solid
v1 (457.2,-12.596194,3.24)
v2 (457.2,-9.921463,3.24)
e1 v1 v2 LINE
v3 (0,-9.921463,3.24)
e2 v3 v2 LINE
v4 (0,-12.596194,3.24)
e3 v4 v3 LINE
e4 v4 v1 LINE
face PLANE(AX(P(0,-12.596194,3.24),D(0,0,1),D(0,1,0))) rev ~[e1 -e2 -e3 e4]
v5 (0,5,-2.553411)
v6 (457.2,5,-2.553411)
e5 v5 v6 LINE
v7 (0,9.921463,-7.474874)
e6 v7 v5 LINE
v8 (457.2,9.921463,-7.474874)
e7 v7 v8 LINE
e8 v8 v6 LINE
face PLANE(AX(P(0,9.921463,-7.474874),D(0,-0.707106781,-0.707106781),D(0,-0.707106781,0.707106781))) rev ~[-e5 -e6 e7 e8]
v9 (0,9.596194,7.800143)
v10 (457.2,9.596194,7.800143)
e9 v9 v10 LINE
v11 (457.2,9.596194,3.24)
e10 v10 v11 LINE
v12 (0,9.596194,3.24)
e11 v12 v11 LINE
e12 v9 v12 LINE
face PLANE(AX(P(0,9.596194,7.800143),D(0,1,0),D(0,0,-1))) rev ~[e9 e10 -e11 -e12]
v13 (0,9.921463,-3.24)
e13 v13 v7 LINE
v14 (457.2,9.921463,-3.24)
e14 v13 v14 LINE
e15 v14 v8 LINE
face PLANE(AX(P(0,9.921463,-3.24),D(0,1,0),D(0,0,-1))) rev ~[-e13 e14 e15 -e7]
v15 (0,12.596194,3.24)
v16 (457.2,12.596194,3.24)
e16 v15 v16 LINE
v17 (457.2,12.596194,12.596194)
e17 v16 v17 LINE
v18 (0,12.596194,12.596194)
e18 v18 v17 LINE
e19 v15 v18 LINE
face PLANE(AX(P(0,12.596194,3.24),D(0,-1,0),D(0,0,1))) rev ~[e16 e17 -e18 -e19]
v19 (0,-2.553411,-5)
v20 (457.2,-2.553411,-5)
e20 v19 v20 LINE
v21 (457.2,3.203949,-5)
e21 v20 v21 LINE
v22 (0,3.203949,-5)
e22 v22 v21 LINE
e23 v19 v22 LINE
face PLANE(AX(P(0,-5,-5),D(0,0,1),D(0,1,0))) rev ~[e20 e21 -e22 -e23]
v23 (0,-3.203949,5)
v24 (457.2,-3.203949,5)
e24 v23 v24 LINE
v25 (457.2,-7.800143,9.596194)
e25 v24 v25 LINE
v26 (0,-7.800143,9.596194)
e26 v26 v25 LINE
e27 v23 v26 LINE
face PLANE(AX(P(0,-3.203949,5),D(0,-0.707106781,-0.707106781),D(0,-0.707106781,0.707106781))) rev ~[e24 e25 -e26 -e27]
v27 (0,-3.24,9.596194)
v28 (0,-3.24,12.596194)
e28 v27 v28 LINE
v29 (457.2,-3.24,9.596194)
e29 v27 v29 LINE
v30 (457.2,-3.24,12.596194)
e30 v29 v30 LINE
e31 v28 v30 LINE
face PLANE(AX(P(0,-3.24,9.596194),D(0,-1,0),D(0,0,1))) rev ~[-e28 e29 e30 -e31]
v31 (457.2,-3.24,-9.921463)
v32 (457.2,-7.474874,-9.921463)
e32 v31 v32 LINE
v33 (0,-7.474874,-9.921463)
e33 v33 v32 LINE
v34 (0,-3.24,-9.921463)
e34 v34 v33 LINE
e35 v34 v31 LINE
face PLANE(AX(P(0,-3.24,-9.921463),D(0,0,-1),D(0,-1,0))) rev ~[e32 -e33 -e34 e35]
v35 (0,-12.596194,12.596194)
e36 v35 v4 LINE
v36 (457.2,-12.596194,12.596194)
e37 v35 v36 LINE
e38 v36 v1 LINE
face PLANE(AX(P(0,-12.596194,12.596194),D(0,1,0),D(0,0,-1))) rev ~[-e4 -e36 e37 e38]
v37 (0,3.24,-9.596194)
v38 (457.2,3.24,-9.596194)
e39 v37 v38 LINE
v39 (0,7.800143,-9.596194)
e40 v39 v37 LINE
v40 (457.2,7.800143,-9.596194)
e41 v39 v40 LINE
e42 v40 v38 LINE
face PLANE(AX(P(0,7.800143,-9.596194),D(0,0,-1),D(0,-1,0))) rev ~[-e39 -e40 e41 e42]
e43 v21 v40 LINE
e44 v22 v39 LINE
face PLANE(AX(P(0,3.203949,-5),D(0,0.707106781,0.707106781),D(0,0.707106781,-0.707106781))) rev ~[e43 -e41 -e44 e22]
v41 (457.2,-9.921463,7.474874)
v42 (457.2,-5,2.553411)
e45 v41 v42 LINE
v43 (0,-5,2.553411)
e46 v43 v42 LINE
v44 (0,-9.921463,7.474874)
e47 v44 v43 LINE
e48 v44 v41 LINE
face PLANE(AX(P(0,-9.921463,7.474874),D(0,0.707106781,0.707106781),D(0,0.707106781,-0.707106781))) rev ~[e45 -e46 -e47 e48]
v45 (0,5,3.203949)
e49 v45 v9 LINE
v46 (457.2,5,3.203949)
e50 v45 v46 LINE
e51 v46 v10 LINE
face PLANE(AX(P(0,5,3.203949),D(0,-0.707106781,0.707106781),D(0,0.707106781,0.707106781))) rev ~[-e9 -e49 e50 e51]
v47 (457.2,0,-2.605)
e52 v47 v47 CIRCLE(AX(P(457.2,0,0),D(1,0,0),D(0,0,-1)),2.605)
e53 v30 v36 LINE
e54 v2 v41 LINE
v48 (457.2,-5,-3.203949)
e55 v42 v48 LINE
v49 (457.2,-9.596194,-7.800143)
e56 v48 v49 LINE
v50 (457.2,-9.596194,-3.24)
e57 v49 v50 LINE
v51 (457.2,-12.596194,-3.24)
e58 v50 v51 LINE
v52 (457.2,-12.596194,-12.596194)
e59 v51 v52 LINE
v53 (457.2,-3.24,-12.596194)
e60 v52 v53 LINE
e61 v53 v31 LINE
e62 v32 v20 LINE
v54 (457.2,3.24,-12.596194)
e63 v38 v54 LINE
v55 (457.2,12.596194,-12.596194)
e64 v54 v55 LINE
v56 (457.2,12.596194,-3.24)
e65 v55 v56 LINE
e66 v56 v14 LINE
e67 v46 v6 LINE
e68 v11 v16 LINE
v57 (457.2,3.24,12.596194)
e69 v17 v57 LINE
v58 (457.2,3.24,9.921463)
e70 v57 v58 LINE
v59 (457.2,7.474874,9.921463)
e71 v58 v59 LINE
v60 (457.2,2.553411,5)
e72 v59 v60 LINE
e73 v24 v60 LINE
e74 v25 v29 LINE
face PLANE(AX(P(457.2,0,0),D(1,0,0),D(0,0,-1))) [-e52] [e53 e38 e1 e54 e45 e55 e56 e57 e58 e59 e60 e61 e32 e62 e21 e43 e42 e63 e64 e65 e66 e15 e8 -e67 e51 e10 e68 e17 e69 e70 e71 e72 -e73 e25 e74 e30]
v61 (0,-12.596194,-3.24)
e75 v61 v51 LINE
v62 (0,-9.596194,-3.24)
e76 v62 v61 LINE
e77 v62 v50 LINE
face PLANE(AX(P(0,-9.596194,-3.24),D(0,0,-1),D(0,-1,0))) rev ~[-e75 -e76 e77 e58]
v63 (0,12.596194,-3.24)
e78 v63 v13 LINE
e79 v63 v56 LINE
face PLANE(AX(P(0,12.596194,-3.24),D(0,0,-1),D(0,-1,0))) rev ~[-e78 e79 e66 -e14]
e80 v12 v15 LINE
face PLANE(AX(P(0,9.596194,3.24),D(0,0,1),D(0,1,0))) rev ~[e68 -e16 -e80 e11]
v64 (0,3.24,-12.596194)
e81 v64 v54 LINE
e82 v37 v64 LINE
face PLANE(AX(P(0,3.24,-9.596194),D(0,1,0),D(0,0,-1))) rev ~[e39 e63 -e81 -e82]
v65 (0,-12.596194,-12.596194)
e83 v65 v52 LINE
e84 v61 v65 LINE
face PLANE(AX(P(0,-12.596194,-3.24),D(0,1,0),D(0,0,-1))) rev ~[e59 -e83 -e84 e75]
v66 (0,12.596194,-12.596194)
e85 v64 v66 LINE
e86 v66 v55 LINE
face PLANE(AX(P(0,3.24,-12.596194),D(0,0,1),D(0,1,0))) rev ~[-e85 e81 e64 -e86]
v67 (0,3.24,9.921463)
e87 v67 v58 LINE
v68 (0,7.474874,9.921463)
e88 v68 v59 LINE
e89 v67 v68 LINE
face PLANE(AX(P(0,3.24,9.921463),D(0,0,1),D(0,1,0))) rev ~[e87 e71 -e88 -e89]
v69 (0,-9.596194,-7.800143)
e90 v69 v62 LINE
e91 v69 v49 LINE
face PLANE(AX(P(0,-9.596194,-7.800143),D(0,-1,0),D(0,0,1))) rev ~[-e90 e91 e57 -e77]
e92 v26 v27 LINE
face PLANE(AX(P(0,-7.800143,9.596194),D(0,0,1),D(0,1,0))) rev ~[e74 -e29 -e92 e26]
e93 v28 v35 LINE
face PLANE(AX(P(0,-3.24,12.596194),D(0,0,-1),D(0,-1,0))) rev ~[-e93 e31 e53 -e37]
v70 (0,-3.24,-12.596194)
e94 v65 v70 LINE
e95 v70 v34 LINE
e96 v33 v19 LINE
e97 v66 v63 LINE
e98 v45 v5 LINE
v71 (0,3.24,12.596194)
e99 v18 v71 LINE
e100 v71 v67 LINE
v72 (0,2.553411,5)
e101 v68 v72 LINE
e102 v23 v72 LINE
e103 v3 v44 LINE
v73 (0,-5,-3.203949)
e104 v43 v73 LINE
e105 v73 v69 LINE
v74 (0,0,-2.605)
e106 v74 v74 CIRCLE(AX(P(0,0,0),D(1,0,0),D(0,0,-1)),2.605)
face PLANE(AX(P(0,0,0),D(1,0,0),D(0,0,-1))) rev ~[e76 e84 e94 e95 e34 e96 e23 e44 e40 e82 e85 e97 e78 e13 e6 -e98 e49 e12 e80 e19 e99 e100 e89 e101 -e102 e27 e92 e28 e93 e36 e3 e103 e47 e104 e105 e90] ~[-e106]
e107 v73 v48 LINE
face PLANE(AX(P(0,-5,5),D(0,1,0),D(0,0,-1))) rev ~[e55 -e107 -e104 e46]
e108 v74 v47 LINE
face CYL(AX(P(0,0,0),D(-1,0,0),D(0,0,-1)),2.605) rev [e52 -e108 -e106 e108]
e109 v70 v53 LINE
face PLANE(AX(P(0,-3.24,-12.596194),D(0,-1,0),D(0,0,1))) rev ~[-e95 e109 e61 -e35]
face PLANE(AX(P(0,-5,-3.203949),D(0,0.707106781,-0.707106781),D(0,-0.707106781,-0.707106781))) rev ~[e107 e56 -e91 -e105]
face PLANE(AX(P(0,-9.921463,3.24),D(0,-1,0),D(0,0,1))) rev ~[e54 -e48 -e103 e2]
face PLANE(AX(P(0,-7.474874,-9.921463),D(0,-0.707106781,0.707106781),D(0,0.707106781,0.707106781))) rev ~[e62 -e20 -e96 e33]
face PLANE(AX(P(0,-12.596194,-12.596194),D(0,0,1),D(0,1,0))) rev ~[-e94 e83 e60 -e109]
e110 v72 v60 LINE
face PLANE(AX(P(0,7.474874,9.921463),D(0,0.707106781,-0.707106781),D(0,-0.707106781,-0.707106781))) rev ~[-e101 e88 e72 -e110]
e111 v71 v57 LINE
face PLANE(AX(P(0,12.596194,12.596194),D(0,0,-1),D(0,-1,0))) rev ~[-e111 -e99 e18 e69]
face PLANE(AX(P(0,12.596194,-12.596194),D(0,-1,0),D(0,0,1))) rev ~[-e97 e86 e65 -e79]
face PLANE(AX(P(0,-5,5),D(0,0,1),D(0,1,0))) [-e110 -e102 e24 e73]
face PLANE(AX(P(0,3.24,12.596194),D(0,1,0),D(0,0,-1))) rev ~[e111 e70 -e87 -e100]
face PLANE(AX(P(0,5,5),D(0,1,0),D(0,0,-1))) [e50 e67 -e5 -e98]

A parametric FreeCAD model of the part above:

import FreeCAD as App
import Part
import Sketcher
Q = App.Units.Quantity


def add_polygon(sketch, points):
    """Adds a closed chain of lines whose ends are joined by coincident constraints."""
    first, n = sketch.GeometryCount, len(points)
    for a, b in zip(points, points[1:] + points[:1]):
        sketch.addGeometry(Part.LineSegment(App.Vector(*a, 0), App.Vector(*b, 0)), False)
    for i in range(n):
        sketch.addConstraint(Sketcher.Constraint("Coincident", first + i, 2, first + (i + 1) % n, 1))

doc = App.newDocument("Part")
body = doc.addObject("PartDesign::Body", "Body")

# Sketch on YZ plane
sketch1 = body.newObject("Sketcher::SketchObject", "Sketch")
sketch1.AttachmentSupport = (doc.getObject("YZ_Plane"), [""])
sketch1.MapMode = "FlatFace"
add_polygon(sketch1, [(5, 5), (-5, 5), (-5, -5), (3.2, -5), (7.8, -9.6), (3.2, -9.6), (3.2, -12.6), (12.6, -12.6), (12.6, -3.2), (9.9, -3.2), (9.9, -7.5), (5, -2.6)])  # lines 0-11
sketch1.addGeometry(Part.Circle(App.Vector(0, 0, 0), App.Vector(0, 0, 1), 2.6), False)  # 12
sketch1.addConstraint([
    Sketcher.Constraint("Horizontal", 0),
    Sketcher.Constraint("Vertical", 1),
    Sketcher.Constraint("Horizontal", 2),
    Sketcher.Constraint("Horizontal", 4),
    Sketcher.Constraint("Vertical", 5),
    Sketcher.Constraint("Horizontal", 6),
    Sketcher.Constraint("Vertical", 7),
    Sketcher.Constraint("Horizontal", 8),
    Sketcher.Constraint("Vertical", 9),
    Sketcher.Constraint("Vertical", 11),
    Sketcher.Constraint("Coincident", 12, 3, -1, 1),
    Sketcher.Constraint("Symmetric", 1, 2, 11, 2, -1, 1),
    Sketcher.Constraint("Parallel", 3, 10),
    Sketcher.Constraint("Equal", 0, 1),
    Sketcher.Constraint("Equal", 6, 7),
    Sketcher.Constraint("Diameter", 12, Q("5.21 mm")),
    Sketcher.Constraint("DistanceX", 0, 2, 0, 1, Q("10 mm")),
    Sketcher.Constraint("DistanceY", 5, 2, 5, 1, Q("3 mm")),
    Sketcher.Constraint("Angle", 3, Q("-45 deg")),
    Sketcher.Constraint("Distance", 3, Q("6.5 mm")),
    Sketcher.Constraint("Distance", 10, Q("6.96 mm")),
    Sketcher.Constraint("DistanceX", -1, 1, 4, 2, Q("3.24 mm")),
    Sketcher.Constraint("DistanceY", 7, 2, -1, 1, Q("3.24 mm")),
    Sketcher.Constraint("DistanceX", 2, 1, 2, 2, Q("8.203949 mm")),
    Sketcher.Constraint("DistanceY", 11, 1, 11, 2, Q("7.553411 mm")),
])
pad1 = body.newObject("PartDesign::Pad", "Pad")
pad1.Profile = sketch1
pad1.Length = 457.2
doc.recompute()

polarpattern = body.newObject("PartDesign::PolarPattern", "PolarPattern")
polarpattern.Originals = [pad1]
polarpattern.Axis = (doc.getObject("X_Axis"), [""])
polarpattern.Angle = 360
polarpattern.Occurrences = 4
body.Tip = polarpattern

doc.recompute()
